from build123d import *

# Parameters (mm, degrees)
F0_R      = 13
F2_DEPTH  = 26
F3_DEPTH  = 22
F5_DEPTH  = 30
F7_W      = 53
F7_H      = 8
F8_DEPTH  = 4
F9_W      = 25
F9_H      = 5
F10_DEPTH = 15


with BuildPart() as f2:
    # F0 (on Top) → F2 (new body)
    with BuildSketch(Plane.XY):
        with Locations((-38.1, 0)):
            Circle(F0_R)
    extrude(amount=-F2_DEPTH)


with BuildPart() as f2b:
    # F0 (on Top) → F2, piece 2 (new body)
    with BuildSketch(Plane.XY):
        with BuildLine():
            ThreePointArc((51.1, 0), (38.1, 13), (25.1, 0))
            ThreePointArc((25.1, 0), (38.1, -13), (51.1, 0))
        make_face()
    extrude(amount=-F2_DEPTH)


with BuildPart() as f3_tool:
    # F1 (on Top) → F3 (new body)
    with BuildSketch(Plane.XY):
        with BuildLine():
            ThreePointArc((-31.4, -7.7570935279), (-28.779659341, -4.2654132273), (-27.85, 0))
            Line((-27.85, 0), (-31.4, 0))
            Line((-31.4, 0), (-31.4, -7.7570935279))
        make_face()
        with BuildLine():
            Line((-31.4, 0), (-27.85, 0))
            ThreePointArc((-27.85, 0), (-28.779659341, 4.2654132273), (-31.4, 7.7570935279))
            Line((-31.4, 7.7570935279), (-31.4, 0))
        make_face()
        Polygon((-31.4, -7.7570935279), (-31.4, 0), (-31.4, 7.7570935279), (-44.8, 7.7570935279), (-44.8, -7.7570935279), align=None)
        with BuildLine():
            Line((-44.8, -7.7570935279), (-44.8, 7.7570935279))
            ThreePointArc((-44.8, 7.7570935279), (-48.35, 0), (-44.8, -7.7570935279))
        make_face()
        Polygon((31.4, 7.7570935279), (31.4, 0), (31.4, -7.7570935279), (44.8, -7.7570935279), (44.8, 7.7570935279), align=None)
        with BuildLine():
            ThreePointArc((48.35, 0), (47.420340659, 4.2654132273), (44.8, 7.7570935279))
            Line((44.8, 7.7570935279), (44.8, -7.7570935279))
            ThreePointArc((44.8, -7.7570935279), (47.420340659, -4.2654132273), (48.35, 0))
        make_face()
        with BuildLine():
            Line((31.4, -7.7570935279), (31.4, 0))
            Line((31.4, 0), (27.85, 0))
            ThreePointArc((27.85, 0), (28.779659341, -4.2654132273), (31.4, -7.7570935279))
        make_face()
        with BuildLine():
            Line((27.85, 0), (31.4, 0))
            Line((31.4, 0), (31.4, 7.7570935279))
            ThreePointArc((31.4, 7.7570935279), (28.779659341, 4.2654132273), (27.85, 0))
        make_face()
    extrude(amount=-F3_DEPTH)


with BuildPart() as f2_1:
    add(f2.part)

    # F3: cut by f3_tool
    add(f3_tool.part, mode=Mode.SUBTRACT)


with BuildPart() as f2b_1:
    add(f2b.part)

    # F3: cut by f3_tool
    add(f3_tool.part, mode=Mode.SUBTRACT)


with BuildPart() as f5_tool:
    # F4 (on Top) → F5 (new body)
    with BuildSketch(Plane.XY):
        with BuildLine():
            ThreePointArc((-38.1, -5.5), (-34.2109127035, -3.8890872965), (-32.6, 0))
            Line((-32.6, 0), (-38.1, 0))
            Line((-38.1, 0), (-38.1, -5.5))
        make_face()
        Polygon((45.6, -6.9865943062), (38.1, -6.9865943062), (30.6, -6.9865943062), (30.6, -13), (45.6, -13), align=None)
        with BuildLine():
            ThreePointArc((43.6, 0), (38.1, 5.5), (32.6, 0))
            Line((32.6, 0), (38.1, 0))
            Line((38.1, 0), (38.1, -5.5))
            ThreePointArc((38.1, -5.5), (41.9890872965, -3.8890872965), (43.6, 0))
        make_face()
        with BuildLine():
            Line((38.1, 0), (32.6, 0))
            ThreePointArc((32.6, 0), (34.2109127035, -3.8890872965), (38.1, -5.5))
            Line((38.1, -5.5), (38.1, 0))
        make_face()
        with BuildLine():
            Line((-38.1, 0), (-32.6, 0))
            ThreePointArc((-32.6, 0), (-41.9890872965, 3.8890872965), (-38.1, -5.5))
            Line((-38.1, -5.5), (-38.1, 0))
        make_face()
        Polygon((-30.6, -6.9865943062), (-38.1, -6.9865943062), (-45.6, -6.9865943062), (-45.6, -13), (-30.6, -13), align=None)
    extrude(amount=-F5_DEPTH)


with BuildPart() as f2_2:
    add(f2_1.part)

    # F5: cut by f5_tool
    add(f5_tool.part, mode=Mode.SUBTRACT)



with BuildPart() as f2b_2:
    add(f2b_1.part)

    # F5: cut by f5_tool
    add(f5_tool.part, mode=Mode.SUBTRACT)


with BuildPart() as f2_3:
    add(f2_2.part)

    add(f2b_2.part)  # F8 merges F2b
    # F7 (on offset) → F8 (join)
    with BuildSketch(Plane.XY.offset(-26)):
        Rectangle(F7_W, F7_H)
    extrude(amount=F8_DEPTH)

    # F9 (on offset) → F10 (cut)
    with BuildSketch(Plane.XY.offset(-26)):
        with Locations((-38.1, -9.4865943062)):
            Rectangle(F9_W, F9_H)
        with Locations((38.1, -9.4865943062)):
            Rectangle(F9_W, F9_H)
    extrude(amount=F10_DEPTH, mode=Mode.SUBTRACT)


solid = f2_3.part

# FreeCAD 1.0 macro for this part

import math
import FreeCAD as App
import Part
import Sketcher
Q = App.Units.Quantity

doc = App.newDocument("Part")
body = doc.addObject("PartDesign::Body", "Body")

# Sketch on XY plane
sketch1 = body.newObject("Sketcher::SketchObject", "Sketch")
sketch1.AttachmentSupport = (doc.getObject("XY_Plane"), [""])
sketch1.MapMode = "FlatFace"
sketch1.addGeometry(Part.Circle(App.Vector(-38.1, 0, 0), App.Vector(0, 0, 1), 13), False)
sketch1.addConstraint([
    Sketcher.Constraint("PointOnObject", 0, 3, -1),
    Sketcher.Constraint("Diameter", 0, Q("26 mm")),
    Sketcher.Constraint("DistanceX", 0, 3, -1, 1, Q("38.1 mm")),
])
pad1 = body.newObject("PartDesign::Pad", "Pad")
pad1.Profile = sketch1
pad1.Length = 26
pad1.Reversed = True
body2 = doc.addObject("PartDesign::Body", "Body001")

# Sketch on XY plane
sketch2 = body2.newObject("Sketcher::SketchObject", "Sketch001")
sketch2.AttachmentSupport = (doc.getObject("XY_Plane001"), [""])
sketch2.MapMode = "FlatFace"
sketch2.addGeometry(Part.Circle(App.Vector(38.1, 0, 0), App.Vector(0, 0, 1), 13), False)
sketch2.addConstraint([
    Sketcher.Constraint("PointOnObject", 0, 3, -1),
    Sketcher.Constraint("Diameter", 0, Q("26 mm")),
    Sketcher.Constraint("DistanceX", -1, 1, 0, 3, Q("38.1 mm")),
])
pad2 = body2.newObject("PartDesign::Pad", "Pad001")
pad2.Profile = sketch2
pad2.Length = 26
pad2.Reversed = True
body3 = doc.addObject("PartDesign::Body", "Body002")
body3.AllowCompound = True

# Sketch on XY plane
sketch3 = body3.newObject("Sketcher::SketchObject", "Sketch002")
sketch3.AttachmentSupport = (doc.getObject("XY_Plane002"), [""])
sketch3.MapMode = "FlatFace"
sketch3.addGeometry([
    Part.ArcOfCircle(Part.Circle(App.Vector(-38.1, 0, 0), App.Vector(0, 0, 1), 10.25), math.radians(-49.181989), math.radians(0)),  # 0
    Part.ArcOfCircle(Part.Circle(App.Vector(-38.1, 0, 0), App.Vector(0, 0, 1), 10.25), math.radians(0), math.radians(49.181989)),  # 1
    Part.LineSegment(App.Vector(-31.4, 7.757094, 0), App.Vector(-44.8, 7.757094, 0)),  # 2
    Part.ArcOfCircle(Part.Circle(App.Vector(-38.1, 0, 0), App.Vector(0, 0, 1), 10.25), math.radians(130.818011), math.radians(229.181989)),  # 3
    Part.LineSegment(App.Vector(-44.8, -7.757094, 0), App.Vector(-31.4, -7.757094, 0)),  # 4
    Part.ArcOfCircle(Part.Circle(App.Vector(38.1, 0, 0), App.Vector(0, 0, 1), 10.25), math.radians(180), math.radians(229.181989)),  # 5
    Part.LineSegment(App.Vector(31.4, -7.757094, 0), App.Vector(44.8, -7.757094, 0)),  # 6
    Part.ArcOfCircle(Part.Circle(App.Vector(38.1, 0, 0), App.Vector(0, 0, 1), 10.25), math.radians(-49.181989), math.radians(0)),  # 7
    Part.ArcOfCircle(Part.Circle(App.Vector(38.1, 0, 0), App.Vector(0, 0, 1), 10.25), math.radians(0), math.radians(49.181989)),  # 8
    Part.LineSegment(App.Vector(44.8, 7.757094, 0), App.Vector(31.4, 7.757094, 0)),  # 9
    Part.ArcOfCircle(Part.Circle(App.Vector(38.1, 0, 0), App.Vector(0, 0, 1), 10.25), math.radians(130.818011), math.radians(180)),  # 10
], False)
sketch3.addConstraint([
    Sketcher.Constraint("Tangent", 0, 2, 1, 1),
    Sketcher.Constraint("Coincident", 1, 2, 2, 1),
    Sketcher.Constraint("Coincident", 2, 2, 3, 1),
    Sketcher.Constraint("Coincident", 3, 2, 4, 1),
    Sketcher.Constraint("Coincident", 4, 2, 0, 1),
    Sketcher.Constraint("Coincident", 5, 2, 6, 1),
    Sketcher.Constraint("Coincident", 6, 2, 7, 1),
    Sketcher.Constraint("Tangent", 7, 2, 8, 1),
    Sketcher.Constraint("Coincident", 8, 2, 9, 1),
    Sketcher.Constraint("Coincident", 9, 2, 10, 1),
    Sketcher.Constraint("Tangent", 10, 2, 5, 1),
    Sketcher.Constraint("Horizontal", 2),
    Sketcher.Constraint("Horizontal", 4),
    Sketcher.Constraint("Horizontal", 6),
    Sketcher.Constraint("Horizontal", 9),
    Sketcher.Constraint("Coincident", 3, 3, 0, 3),
    Sketcher.Constraint("Coincident", 7, 3, 5, 3),
    Sketcher.Constraint("Equal", 0, 1),
    Sketcher.Constraint("Equal", 1, 3),
    Sketcher.Constraint("Equal", 3, 5),
    Sketcher.Constraint("Equal", 5, 7),
    Sketcher.Constraint("Equal", 7, 8),
    Sketcher.Constraint("Equal", 8, 10),
    Sketcher.Constraint("Symmetric", 0, 3, 5, 3, -1, 1),
    Sketcher.Constraint("Symmetric", 4, 2, 5, 2, -2),
    Sketcher.Constraint("PointOnObject", 0, 2, -1),
    Sketcher.Constraint("PointOnObject", 7, 2, -1),
    Sketcher.Constraint("PointOnObject", 10, 2, -1),
    Sketcher.Constraint("Horizontal", 2, 2, 8, 2),
    Sketcher.Constraint("Vertical", 2, 2, 3, 2),
    Sketcher.Constraint("Radius", 0, Q("10.25 mm")),
    Sketcher.Constraint("DistanceX", 2, 2, 2, 1, Q("13.4 mm")),
    Sketcher.Constraint("DistanceX", 0, 3, -1, 1, Q("38.1 mm")),
])
pad3 = body3.newObject("PartDesign::Pad", "Pad002")
pad3.Profile = sketch3
pad3.Length = 22
pad3.Reversed = True
doc.recompute()

body4 = doc.addObject("PartDesign::Body", "Body003")
body4.BaseFeature = body3
boolean = body.newObject("PartDesign::Boolean", "Boolean")
boolean.Type = "Cut"
boolean.addObjects([body4])
doc.recompute()

boolean2 = body2.newObject("PartDesign::Boolean", "Boolean001")
boolean2.Type = "Cut"
boolean2.addObjects([body3])
body5 = doc.addObject("PartDesign::Body", "Body004")
body5.AllowCompound = True

# Sketch on XY plane
sketch4 = body5.newObject("Sketcher::SketchObject", "Sketch003")
sketch4.AttachmentSupport = (doc.getObject("XY_Plane004"), [""])
sketch4.MapMode = "FlatFace"
sketch4.addGeometry([
    Part.ArcOfCircle(Part.Circle(App.Vector(-38.1, 0, 0), App.Vector(0, 0, 1), 5.5), math.radians(-90), math.radians(0)),  # 0
    Part.ArcOfCircle(Part.Circle(App.Vector(-38.1, 0, 0), App.Vector(0, 0, 1), 5.5), math.radians(0), math.radians(270)),  # 1
    Part.LineSegment(App.Vector(45.6, -6.986594, 0), App.Vector(30.6, -6.986594, 0)),  # 2
    Part.LineSegment(App.Vector(30.6, -6.986594, 0), App.Vector(30.6, -13, 0)),  # 3
    Part.LineSegment(App.Vector(30.6, -13, 0), App.Vector(45.6, -13, 0)),  # 4
    Part.LineSegment(App.Vector(45.6, -13, 0), App.Vector(45.6, -6.986594, 0)),  # 5
    Part.ArcOfCircle(Part.Circle(App.Vector(38.1, 0, 0), App.Vector(0, 0, 1), 5.5), math.radians(0), math.radians(180)),  # 6
    Part.ArcOfCircle(Part.Circle(App.Vector(38.1, 0, 0), App.Vector(0, 0, 1), 5.5), math.radians(180), math.radians(270)),  # 7
    Part.ArcOfCircle(Part.Circle(App.Vector(38.1, 0, 0), App.Vector(0, 0, 1), 5.5), math.radians(-90), math.radians(0)),  # 8
    Part.LineSegment(App.Vector(-30.6, -6.986594, 0), App.Vector(-45.6, -6.986594, 0)),  # 9
    Part.LineSegment(App.Vector(-45.6, -6.986594, 0), App.Vector(-45.6, -13, 0)),  # 10
    Part.LineSegment(App.Vector(-45.6, -13, 0), App.Vector(-30.6, -13, 0)),  # 11
    Part.LineSegment(App.Vector(-30.6, -13, 0), App.Vector(-30.6, -6.986594, 0)),  # 12
], False)
sketch4.addConstraint([
    Sketcher.Constraint("Tangent", 0, 1, 1, 2),
    Sketcher.Constraint("Coincident", 1, 1, 0, 2),
    Sketcher.Constraint("Coincident", 2, 2, 3, 1),
    Sketcher.Constraint("Coincident", 3, 2, 4, 1),
    Sketcher.Constraint("Coincident", 4, 2, 5, 1),
    Sketcher.Constraint("Coincident", 5, 2, 2, 1),
    Sketcher.Constraint("Tangent", 6, 2, 7, 1),
    Sketcher.Constraint("Tangent", 7, 2, 8, 1),
    Sketcher.Constraint("Tangent", 8, 2, 6, 1),
    Sketcher.Constraint("Coincident", 9, 2, 10, 1),
    Sketcher.Constraint("Coincident", 10, 2, 11, 1),
    Sketcher.Constraint("Coincident", 11, 2, 12, 1),
    Sketcher.Constraint("Coincident", 12, 2, 9, 1),
    Sketcher.Constraint("Horizontal", 2),
    Sketcher.Constraint("Vertical", 3),
    Sketcher.Constraint("Horizontal", 4),
    Sketcher.Constraint("Vertical", 5),
    Sketcher.Constraint("Horizontal", 9),
    Sketcher.Constraint("Vertical", 10),
    Sketcher.Constraint("Horizontal", 11),
    Sketcher.Constraint("Vertical", 12),
    Sketcher.Constraint("Equal", 1, 6),
    Sketcher.Constraint("Symmetric", 0, 3, 6, 3, -1, 1),
    Sketcher.Constraint("Symmetric", 0, 1, 7, 2, -2),
    Sketcher.Constraint("Symmetric", 5, 2, 9, 2, -2),
    Sketcher.Constraint("Symmetric", 3, 2, 11, 2, -2),
    Sketcher.Constraint("PointOnObject", 1, 1, -1),
    Sketcher.Constraint("PointOnObject", 6, 2, -1),
    Sketcher.Constraint("PointOnObject", 8, 2, -1),
    Sketcher.Constraint("Vertical", 1, 3, 0, 1),
    Sketcher.Constraint("Radius", 0, Q("5.5 mm")),
    Sketcher.Constraint("DistanceX", 2, 2, 2, 1, Q("15 mm")),
    Sketcher.Constraint("DistanceY", 3, 2, -1, 1, Q("13 mm")),
    Sketcher.Constraint("DistanceX", 2, 2, 6, 2, Q("2 mm")),
    Sketcher.Constraint("DistanceX", 0, 3, -1, 1, Q("38.1 mm")),
    Sketcher.Constraint("DistanceY", 3, 2, 3, 1, Q("6.013406 mm")),
])
pad4 = body5.newObject("PartDesign::Pad", "Pad003")
pad4.Profile = sketch4
pad4.Length = 30
pad4.Reversed = True
doc.recompute()

body6 = doc.addObject("PartDesign::Body", "Body005")
body6.BaseFeature = body5
boolean3 = body.newObject("PartDesign::Boolean", "Boolean002")
boolean3.Type = "Cut"
boolean3.addObjects([body6])
doc.recompute()

boolean4 = body2.newObject("PartDesign::Boolean", "Boolean003")
boolean4.Type = "Cut"
boolean4.addObjects([body5])
body.AllowCompound = True
doc.recompute()

boolean5 = body.newObject("PartDesign::Boolean", "Boolean004")
boolean5.Type = "Fuse"
boolean5.addObjects([body2])

# Sketch on XY plane
sketch5 = body.newObject("Sketcher::SketchObject", "Sketch004")
sketch5.AttachmentSupport = (doc.getObject("XY_Plane"), [""])
sketch5.MapMode = "FlatFace"
sketch5.AttachmentOffset = App.Placement(App.Vector(0, 0, -26), App.Rotation())
sketch5.addGeometry([
    Part.LineSegment(App.Vector(-26.5, 4, 0), App.Vector(-26.5, -4, 0)),
    Part.LineSegment(App.Vector(-26.5, -4, 0), App.Vector(26.5, -4, 0)),
    Part.LineSegment(App.Vector(26.5, -4, 0), App.Vector(26.5, 4, 0)),
    Part.LineSegment(App.Vector(26.5, 4, 0), App.Vector(-26.5, 4, 0)),
], False)
sketch5.addConstraint([
    Sketcher.Constraint("Coincident", 0, 2, 1, 1),
    Sketcher.Constraint("Coincident", 1, 2, 2, 1),
    Sketcher.Constraint("Coincident", 2, 2, 3, 1),
    Sketcher.Constraint("Coincident", 3, 2, 0, 1),
    Sketcher.Constraint("Vertical", 0),
    Sketcher.Constraint("Horizontal", 1),
    Sketcher.Constraint("Vertical", 2),
    Sketcher.Constraint("Horizontal", 3),
    Sketcher.Constraint("Symmetric", 0, 2, 2, 2, -1, 1),
    Sketcher.Constraint("DistanceX", 1, 1, 1, 2, Q("53 mm")),
    Sketcher.Constraint("DistanceY", 0, 2, 0, 1, Q("8 mm")),
])
pad5 = body.newObject("PartDesign::Pad", "Pad004")
pad5.Profile = sketch5
pad5.Length = 4

# Sketch on XY plane
sketch6 = body.newObject("Sketcher::SketchObject", "Sketch005")
sketch6.AttachmentSupport = (doc.getObject("XY_Plane"), [""])
sketch6.MapMode = "FlatFace"
sketch6.AttachmentOffset = App.Placement(App.Vector(0, 0, -26), App.Rotation())
sketch6.addGeometry([
    Part.LineSegment(App.Vector(-50.6, -6.986594, 0), App.Vector(-50.6, -11.986594, 0)),  # 0
    Part.LineSegment(App.Vector(-50.6, -11.986594, 0), App.Vector(-25.6, -11.986594, 0)),  # 1
    Part.LineSegment(App.Vector(-25.6, -11.986594, 0), App.Vector(-25.6, -6.986594, 0)),  # 2
    Part.LineSegment(App.Vector(-25.6, -6.986594, 0), App.Vector(-50.6, -6.986594, 0)),  # 3
    Part.LineSegment(App.Vector(25.6, -6.986594, 0), App.Vector(25.6, -11.986594, 0)),  # 4
    Part.LineSegment(App.Vector(25.6, -11.986594, 0), App.Vector(50.6, -11.986594, 0)),  # 5
    Part.LineSegment(App.Vector(50.6, -11.986594, 0), App.Vector(50.6, -6.986594, 0)),  # 6
    Part.LineSegment(App.Vector(50.6, -6.986594, 0), App.Vector(25.6, -6.986594, 0)),  # 7
], False)
sketch6.addConstraint([
    Sketcher.Constraint("Coincident", 0, 2, 1, 1),
    Sketcher.Constraint("Coincident", 1, 2, 2, 1),
    Sketcher.Constraint("Coincident", 2, 2, 3, 1),
    Sketcher.Constraint("Coincident", 3, 2, 0, 1),
    Sketcher.Constraint("Coincident", 4, 2, 5, 1),
    Sketcher.Constraint("Coincident", 5, 2, 6, 1),
    Sketcher.Constraint("Coincident", 6, 2, 7, 1),
    Sketcher.Constraint("Coincident", 7, 2, 4, 1),
    Sketcher.Constraint("Vertical", 0),
    Sketcher.Constraint("Horizontal", 1),
    Sketcher.Constraint("Vertical", 2),
    Sketcher.Constraint("Horizontal", 3),
    Sketcher.Constraint("Vertical", 4),
    Sketcher.Constraint("Horizontal", 5),
    Sketcher.Constraint("Vertical", 6),
    Sketcher.Constraint("Horizontal", 7),
    Sketcher.Constraint("Symmetric", 1, 2, 4, 2, -2),
    Sketcher.Constraint("Symmetric", 3, 2, 6, 2, -2),
    Sketcher.Constraint("DistanceX", 1, 1, 1, 2, Q("25 mm")),
    Sketcher.Constraint("DistanceY", 0, 2, 0, 1, Q("5 mm")),
    Sketcher.Constraint("DistanceX", 0, 2, -1, 1, Q("50.6 mm")),
    Sketcher.Constraint("DistanceY", 0, 2, -1, 1, Q("11.986594 mm")),
])
pocket1 = body.newObject("PartDesign::Pocket", "Pocket")
pocket1.Profile = sketch6
pocket1.Length = 15
pocket1.Reversed = True

doc.recompute()
